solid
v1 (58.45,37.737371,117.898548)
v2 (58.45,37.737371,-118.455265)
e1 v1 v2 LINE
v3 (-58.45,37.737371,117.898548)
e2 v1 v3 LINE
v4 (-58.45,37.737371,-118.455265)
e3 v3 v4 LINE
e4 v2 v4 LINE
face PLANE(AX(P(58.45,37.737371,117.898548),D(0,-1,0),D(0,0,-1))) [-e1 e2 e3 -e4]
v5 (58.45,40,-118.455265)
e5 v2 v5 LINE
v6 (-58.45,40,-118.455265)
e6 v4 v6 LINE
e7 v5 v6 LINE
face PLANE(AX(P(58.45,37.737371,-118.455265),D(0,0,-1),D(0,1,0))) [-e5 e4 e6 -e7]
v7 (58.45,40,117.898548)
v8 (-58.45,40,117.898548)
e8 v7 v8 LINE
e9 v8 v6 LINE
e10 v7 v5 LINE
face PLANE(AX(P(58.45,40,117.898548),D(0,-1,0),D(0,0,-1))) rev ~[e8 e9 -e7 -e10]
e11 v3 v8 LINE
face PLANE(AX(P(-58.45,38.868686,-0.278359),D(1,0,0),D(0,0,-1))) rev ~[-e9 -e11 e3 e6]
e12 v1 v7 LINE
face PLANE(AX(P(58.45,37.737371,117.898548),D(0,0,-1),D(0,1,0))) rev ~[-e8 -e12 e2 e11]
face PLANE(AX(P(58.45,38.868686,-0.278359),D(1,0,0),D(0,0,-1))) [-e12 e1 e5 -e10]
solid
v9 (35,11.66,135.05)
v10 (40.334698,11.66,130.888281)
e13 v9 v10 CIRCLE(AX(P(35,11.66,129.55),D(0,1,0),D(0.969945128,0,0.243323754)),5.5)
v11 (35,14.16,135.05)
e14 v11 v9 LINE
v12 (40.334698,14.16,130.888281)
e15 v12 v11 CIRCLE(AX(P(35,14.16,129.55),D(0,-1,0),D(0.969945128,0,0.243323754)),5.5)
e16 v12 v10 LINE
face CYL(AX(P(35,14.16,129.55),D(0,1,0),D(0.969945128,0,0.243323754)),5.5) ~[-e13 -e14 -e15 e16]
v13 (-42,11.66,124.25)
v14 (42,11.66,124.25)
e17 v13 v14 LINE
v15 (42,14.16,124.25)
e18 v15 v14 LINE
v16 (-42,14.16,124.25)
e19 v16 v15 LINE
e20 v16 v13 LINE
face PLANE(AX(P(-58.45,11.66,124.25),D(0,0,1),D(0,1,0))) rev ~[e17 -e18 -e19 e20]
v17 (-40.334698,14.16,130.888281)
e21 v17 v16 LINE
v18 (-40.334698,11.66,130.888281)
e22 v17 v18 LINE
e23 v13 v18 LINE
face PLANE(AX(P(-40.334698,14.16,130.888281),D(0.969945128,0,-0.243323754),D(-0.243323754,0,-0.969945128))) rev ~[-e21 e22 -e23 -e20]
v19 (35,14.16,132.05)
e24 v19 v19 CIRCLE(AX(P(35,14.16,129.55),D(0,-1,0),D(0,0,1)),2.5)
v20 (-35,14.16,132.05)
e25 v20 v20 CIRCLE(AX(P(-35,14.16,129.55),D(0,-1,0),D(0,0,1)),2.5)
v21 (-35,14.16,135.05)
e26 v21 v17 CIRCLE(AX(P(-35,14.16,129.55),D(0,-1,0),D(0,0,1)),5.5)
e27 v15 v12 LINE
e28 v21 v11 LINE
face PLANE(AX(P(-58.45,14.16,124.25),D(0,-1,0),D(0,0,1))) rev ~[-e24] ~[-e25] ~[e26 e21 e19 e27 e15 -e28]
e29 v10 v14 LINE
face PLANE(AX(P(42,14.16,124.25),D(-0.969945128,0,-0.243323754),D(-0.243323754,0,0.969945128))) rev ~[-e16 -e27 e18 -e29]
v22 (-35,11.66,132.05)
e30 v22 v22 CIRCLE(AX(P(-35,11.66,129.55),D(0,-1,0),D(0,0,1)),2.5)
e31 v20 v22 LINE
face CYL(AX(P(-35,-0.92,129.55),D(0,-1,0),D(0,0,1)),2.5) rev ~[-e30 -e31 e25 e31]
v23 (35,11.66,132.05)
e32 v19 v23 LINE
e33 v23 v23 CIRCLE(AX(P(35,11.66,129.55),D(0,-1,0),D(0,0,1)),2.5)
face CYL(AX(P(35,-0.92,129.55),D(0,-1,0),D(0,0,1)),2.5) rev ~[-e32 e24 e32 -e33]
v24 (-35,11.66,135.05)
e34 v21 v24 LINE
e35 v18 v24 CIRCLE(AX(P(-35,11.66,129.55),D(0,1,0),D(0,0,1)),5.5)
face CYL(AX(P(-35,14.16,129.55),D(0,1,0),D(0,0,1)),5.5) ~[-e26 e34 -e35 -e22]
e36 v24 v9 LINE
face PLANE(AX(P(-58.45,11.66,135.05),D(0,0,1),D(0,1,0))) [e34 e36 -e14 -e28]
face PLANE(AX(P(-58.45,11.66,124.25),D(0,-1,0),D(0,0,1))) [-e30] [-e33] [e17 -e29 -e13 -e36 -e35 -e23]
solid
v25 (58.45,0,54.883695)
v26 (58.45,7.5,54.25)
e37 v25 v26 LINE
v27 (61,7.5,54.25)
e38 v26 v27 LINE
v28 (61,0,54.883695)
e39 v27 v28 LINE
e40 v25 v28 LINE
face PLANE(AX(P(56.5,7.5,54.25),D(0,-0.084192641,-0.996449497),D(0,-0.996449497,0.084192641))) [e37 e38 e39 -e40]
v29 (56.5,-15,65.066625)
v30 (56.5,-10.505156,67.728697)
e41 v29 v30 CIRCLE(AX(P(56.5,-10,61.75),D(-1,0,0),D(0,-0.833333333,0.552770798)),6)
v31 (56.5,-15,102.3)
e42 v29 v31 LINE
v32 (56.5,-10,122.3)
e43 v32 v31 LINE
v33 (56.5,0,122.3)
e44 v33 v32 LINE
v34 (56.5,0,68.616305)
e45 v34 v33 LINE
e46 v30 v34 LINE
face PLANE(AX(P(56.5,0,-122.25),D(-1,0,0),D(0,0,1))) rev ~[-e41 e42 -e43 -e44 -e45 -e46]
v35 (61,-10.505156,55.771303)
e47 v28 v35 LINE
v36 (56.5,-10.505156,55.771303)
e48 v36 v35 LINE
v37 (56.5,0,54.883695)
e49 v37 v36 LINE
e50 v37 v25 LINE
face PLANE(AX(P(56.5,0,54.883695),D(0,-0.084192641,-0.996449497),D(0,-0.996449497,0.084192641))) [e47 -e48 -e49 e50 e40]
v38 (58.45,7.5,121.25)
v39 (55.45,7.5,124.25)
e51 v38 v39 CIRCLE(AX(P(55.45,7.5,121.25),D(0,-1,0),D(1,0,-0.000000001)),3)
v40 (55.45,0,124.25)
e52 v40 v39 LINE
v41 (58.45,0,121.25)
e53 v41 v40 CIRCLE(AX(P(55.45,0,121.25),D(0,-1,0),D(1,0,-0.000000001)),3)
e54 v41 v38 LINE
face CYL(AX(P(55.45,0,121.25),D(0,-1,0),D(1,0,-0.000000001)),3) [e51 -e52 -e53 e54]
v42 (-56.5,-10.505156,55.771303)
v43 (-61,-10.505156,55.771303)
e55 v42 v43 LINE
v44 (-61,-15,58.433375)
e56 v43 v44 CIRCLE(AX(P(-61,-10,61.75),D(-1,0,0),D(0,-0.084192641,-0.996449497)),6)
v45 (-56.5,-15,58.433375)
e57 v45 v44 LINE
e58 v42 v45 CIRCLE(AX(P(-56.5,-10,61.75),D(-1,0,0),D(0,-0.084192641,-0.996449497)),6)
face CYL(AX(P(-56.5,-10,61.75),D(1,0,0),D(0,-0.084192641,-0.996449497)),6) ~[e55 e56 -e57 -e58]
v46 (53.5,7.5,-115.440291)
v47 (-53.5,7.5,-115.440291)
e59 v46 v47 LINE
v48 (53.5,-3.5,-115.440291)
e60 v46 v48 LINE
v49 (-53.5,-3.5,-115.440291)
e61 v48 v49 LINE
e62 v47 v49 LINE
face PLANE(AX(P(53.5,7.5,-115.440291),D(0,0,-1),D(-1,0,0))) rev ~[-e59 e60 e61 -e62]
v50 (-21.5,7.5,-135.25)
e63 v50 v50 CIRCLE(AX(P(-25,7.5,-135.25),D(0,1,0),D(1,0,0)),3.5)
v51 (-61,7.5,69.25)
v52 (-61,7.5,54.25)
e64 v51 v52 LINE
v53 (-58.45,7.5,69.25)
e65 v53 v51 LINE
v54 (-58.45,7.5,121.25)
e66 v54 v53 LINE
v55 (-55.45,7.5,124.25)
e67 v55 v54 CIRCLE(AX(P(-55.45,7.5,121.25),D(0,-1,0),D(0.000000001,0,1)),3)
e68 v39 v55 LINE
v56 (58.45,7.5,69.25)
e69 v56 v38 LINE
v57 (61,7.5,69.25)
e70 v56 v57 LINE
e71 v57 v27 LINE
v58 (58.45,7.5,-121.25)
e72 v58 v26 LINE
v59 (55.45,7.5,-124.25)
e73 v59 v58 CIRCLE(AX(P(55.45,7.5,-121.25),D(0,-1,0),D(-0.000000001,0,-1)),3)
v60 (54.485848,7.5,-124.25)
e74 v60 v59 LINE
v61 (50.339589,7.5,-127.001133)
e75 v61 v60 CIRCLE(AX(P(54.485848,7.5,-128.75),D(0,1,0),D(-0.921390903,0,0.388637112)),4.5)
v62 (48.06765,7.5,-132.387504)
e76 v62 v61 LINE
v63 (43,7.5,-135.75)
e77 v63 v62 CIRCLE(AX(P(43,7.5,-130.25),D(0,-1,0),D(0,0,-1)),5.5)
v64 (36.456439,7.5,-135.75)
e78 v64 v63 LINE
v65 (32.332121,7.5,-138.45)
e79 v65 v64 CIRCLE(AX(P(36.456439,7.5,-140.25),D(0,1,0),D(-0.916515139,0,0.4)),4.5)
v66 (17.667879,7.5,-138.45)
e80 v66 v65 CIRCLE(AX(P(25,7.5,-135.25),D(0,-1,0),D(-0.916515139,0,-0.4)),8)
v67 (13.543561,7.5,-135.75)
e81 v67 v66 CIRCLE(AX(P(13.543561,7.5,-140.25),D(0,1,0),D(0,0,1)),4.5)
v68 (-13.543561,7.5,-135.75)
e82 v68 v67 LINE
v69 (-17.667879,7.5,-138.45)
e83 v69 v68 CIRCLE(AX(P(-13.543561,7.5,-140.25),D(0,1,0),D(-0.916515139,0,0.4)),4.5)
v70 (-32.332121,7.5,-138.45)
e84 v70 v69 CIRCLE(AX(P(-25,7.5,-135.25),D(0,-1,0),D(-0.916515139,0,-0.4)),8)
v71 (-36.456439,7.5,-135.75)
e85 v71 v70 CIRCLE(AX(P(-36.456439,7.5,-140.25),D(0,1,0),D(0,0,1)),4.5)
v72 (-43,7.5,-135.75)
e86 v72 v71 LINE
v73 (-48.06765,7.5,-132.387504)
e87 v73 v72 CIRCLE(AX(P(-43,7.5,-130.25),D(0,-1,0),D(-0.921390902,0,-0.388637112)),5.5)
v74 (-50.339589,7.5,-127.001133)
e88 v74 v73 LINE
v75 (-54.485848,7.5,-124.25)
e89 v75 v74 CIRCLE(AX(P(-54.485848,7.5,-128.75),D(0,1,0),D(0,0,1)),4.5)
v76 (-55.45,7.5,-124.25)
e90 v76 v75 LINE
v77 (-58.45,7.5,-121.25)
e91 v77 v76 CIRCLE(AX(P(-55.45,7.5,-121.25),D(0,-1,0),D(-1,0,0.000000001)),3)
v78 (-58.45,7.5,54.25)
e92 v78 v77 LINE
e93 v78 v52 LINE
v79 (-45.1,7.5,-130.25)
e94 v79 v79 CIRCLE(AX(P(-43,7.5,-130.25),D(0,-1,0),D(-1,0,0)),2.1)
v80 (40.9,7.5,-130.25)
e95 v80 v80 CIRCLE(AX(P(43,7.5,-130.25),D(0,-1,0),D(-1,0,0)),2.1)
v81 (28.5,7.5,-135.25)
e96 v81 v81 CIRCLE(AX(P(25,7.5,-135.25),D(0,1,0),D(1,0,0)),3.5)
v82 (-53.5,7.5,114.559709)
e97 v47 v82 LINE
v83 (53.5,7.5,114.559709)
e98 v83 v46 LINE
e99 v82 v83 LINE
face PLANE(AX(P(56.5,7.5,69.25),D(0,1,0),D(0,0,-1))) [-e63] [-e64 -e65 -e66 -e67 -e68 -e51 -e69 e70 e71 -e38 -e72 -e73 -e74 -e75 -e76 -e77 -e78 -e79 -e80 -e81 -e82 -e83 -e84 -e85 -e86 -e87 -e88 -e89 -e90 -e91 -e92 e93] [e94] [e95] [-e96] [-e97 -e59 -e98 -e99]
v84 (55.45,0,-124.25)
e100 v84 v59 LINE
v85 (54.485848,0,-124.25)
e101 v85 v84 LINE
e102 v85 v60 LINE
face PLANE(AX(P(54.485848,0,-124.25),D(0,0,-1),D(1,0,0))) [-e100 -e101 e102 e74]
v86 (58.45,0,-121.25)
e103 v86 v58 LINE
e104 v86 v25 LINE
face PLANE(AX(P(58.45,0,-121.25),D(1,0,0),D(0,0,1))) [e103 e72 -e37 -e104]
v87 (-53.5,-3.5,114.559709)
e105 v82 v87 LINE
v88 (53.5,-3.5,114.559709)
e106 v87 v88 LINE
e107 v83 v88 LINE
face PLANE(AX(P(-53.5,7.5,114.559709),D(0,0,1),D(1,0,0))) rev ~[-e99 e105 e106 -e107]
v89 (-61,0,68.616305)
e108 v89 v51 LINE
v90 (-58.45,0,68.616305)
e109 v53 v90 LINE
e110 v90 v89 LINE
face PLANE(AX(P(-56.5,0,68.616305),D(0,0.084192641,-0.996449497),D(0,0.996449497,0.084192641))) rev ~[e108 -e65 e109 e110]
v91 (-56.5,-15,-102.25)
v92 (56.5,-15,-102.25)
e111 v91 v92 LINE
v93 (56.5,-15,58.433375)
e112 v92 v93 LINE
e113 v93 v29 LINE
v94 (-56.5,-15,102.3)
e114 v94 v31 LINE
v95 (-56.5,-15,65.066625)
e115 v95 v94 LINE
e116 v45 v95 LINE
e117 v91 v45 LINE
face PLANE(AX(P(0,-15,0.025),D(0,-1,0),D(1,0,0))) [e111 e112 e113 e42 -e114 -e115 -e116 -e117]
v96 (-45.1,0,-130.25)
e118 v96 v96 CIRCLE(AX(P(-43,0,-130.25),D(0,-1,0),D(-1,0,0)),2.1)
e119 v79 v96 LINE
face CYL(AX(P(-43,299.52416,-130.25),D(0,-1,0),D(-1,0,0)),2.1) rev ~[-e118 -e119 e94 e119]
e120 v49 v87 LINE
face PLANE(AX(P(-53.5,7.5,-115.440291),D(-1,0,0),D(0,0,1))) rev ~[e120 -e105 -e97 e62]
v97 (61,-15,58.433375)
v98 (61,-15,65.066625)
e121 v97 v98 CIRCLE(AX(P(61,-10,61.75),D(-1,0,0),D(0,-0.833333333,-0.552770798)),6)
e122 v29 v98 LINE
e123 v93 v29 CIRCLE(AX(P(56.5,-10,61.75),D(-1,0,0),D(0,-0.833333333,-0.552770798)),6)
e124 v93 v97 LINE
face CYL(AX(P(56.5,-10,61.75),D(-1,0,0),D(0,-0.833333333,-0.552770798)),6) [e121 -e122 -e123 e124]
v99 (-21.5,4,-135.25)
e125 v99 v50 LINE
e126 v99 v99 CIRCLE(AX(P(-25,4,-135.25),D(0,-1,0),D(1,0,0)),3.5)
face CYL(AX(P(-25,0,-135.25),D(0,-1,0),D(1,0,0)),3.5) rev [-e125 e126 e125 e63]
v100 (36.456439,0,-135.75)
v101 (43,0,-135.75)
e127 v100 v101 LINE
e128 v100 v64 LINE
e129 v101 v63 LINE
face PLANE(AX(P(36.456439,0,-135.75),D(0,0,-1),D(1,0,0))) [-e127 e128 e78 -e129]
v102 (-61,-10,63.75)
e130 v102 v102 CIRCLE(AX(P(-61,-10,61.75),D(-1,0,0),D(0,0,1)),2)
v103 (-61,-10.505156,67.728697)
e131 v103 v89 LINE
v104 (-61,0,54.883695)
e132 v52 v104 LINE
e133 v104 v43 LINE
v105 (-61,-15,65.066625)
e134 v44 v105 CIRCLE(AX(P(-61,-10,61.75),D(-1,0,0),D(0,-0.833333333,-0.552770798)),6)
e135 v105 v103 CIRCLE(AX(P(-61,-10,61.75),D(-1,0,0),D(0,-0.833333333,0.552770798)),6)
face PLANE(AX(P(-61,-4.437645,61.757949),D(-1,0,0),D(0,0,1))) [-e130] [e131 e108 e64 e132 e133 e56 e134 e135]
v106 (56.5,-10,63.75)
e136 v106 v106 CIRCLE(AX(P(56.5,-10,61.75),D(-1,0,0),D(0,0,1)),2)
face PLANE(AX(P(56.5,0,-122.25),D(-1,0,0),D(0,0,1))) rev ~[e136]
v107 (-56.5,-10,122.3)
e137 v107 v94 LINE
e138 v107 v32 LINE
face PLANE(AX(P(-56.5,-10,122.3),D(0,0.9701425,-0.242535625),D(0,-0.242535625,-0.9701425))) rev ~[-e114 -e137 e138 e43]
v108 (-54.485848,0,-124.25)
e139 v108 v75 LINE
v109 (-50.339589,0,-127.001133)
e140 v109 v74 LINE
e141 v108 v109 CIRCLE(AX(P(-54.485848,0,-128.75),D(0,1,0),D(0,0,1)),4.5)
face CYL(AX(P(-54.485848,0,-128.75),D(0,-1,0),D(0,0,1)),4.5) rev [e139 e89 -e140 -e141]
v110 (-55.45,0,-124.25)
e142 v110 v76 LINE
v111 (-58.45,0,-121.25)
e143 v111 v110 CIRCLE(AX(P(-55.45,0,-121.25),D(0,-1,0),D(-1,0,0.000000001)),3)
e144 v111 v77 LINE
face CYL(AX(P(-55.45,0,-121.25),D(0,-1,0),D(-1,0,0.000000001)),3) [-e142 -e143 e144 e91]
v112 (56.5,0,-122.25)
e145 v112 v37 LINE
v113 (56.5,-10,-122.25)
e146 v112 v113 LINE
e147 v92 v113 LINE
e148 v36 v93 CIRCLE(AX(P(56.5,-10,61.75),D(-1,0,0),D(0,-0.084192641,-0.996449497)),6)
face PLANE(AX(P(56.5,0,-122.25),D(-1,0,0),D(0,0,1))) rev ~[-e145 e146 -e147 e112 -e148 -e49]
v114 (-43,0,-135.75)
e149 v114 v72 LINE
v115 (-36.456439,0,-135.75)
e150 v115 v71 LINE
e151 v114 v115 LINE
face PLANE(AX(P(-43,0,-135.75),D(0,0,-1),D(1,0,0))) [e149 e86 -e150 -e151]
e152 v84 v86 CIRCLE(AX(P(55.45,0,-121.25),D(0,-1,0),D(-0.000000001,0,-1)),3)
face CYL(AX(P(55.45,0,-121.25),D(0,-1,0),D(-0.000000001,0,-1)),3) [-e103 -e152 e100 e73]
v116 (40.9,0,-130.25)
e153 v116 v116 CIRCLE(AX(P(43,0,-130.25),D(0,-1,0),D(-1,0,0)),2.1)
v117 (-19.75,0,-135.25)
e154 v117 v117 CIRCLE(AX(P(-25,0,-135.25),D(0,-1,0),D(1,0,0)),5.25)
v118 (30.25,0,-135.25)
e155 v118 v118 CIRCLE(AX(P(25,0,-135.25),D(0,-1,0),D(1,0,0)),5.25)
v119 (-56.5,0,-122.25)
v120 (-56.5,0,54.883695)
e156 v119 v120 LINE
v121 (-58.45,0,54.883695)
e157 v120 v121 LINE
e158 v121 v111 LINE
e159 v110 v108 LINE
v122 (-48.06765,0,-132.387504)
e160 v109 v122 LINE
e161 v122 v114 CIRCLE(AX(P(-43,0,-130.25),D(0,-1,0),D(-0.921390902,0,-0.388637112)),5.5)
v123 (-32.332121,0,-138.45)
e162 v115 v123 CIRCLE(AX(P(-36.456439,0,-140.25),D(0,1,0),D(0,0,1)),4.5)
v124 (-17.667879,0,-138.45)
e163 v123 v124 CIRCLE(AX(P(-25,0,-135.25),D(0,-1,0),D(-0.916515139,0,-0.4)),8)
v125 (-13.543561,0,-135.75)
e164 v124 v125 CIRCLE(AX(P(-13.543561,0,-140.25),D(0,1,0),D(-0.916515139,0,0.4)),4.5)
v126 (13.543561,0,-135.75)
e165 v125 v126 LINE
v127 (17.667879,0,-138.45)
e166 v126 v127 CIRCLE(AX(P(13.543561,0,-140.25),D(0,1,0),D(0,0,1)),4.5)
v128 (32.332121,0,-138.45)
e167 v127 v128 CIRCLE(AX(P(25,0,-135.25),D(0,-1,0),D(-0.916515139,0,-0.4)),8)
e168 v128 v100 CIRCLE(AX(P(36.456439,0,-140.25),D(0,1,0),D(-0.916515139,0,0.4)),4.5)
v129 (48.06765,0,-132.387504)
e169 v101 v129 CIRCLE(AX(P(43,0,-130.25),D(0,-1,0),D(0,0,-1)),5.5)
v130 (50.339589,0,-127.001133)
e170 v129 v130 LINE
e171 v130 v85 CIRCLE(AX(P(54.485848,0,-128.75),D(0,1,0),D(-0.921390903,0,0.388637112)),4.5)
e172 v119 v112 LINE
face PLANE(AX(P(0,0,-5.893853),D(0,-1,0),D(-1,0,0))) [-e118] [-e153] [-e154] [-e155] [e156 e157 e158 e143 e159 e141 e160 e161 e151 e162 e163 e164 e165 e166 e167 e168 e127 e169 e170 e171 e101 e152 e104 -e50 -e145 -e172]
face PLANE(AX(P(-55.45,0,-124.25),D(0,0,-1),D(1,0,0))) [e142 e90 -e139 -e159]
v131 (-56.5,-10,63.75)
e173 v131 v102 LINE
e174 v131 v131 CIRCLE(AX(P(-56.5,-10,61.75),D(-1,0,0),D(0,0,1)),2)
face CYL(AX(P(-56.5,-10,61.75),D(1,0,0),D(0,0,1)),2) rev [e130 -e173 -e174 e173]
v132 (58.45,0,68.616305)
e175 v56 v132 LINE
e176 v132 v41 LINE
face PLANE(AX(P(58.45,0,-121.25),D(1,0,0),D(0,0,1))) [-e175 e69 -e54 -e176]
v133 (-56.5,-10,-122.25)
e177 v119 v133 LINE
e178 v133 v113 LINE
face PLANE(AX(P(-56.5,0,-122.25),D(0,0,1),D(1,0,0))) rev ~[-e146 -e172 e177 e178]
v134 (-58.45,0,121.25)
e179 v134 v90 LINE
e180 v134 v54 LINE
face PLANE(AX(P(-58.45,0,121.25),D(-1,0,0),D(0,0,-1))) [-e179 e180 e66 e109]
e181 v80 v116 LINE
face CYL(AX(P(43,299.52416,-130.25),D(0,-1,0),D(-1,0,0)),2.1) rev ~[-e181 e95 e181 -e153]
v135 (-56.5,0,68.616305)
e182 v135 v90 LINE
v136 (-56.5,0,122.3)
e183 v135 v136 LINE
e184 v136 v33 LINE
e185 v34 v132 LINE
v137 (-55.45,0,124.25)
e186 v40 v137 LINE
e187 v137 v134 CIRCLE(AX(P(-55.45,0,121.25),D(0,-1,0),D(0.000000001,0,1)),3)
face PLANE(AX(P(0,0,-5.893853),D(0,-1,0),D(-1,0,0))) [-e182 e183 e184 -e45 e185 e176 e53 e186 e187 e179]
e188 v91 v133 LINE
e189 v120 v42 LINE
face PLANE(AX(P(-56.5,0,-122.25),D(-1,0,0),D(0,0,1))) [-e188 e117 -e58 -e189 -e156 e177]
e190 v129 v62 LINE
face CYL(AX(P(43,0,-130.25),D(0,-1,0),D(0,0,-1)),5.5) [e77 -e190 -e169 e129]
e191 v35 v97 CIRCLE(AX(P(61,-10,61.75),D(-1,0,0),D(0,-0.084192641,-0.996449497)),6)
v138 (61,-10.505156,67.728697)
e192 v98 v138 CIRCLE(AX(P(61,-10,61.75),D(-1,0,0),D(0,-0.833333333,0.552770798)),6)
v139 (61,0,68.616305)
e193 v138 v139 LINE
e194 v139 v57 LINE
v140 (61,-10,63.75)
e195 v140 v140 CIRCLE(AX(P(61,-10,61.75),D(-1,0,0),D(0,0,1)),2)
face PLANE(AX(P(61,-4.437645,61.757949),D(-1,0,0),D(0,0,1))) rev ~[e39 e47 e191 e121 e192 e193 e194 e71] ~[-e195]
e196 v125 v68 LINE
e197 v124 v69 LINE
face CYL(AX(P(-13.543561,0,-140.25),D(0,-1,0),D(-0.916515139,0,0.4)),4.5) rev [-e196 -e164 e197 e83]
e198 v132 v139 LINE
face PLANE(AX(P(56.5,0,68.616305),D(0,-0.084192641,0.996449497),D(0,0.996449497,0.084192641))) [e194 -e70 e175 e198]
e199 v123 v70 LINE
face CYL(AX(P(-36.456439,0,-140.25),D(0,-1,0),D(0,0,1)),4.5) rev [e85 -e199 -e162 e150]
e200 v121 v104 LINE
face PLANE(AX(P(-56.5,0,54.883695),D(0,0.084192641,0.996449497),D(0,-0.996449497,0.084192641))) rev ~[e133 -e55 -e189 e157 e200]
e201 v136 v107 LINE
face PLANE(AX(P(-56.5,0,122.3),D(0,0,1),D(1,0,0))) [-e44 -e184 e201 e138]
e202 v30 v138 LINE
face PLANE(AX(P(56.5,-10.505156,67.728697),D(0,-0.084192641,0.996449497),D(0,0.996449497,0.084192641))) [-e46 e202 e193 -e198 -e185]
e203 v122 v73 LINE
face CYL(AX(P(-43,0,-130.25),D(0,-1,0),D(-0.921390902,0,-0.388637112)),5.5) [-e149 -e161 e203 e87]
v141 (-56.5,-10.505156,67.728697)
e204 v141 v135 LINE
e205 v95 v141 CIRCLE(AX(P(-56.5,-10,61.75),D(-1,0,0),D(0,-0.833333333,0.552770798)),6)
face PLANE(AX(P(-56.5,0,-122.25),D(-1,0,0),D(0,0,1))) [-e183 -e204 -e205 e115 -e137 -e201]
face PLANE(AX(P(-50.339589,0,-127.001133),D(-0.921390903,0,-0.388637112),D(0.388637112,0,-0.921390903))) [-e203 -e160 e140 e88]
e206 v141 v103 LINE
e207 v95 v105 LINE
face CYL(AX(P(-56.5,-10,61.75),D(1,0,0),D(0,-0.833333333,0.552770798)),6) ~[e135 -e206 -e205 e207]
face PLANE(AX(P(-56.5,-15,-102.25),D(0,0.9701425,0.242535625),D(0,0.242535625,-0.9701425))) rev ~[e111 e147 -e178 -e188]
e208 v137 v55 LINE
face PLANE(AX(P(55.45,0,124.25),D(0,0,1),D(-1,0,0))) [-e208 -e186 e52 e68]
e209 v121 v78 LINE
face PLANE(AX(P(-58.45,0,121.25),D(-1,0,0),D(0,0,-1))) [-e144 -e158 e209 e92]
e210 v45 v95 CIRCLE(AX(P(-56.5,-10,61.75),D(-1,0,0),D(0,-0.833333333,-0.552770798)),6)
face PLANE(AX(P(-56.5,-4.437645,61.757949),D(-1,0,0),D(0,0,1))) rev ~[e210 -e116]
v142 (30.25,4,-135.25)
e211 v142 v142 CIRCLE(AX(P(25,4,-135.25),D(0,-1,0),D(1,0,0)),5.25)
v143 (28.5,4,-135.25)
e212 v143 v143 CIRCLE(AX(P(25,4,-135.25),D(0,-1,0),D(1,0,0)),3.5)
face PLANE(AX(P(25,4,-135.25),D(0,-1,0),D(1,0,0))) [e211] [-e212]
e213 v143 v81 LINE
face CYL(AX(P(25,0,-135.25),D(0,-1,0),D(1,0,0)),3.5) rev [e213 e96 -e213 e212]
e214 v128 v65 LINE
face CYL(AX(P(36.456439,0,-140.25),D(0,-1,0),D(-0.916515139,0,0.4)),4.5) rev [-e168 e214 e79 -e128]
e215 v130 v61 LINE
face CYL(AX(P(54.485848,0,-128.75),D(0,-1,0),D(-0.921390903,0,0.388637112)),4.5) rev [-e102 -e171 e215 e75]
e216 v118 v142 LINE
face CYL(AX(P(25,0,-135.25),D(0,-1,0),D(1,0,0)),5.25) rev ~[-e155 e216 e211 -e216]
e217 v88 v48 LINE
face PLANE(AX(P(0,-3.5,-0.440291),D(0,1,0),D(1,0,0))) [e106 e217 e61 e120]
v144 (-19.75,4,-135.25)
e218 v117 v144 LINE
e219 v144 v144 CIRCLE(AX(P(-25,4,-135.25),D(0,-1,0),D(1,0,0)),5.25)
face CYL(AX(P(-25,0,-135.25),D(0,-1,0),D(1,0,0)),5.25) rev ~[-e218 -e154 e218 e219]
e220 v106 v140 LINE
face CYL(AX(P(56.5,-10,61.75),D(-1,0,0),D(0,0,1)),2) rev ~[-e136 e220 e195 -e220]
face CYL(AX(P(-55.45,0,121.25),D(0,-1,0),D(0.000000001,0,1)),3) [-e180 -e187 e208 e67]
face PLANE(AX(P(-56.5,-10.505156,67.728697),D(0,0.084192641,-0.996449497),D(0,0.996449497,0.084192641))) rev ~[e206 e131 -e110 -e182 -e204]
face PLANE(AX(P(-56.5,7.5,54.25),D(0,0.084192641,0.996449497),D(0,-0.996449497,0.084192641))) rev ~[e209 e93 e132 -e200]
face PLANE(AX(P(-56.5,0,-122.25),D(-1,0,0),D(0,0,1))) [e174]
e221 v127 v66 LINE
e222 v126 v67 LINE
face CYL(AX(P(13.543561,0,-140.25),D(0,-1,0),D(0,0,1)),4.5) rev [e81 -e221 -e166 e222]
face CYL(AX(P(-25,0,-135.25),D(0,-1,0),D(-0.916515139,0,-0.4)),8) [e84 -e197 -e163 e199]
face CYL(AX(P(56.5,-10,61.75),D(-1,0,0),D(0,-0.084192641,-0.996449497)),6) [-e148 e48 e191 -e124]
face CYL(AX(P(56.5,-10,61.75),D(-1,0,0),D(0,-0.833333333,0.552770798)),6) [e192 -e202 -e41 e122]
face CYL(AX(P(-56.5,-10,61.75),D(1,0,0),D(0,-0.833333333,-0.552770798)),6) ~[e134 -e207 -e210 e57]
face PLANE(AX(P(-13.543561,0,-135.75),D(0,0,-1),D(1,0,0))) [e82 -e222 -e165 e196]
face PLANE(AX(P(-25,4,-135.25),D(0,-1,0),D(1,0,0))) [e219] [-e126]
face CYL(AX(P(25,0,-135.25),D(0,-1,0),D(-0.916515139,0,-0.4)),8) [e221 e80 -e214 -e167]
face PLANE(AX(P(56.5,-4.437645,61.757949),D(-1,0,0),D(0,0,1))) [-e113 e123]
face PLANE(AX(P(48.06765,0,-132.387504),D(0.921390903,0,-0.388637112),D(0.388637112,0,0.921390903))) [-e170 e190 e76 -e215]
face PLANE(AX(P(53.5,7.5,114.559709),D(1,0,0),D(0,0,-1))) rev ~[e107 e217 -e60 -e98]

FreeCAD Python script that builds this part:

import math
import FreeCAD as App
import Part
import Sketcher
from FreeCAD import Vector

doc = App.newDocument("Part")
body = doc.addObject("PartDesign::Body", "Body")

sketch1 = doc.addObject("Sketcher::SketchObject", "Sketch")
body.addObject(sketch1)
sketch1.AttachmentSupport = (doc.XZ_Plane, [""])
sketch1.MapMode = "FlatFace"
sketch1.addGeometry(Part.LineSegment(Vector(-36.456439, -135.75, 0), Vector(-43, -135.75, 0)), False)
sketch1.addGeometry(Part.ArcOfCircle(Part.Circle(Vector(-43, -130.25, 0), Vector(0, 0, 1), 5.5), math.radians(-157.130277), math.radians(-90)), False)
sketch1.addGeometry(Part.LineSegment(Vector(-48.06765, -132.387504, 0), Vector(-50.339589, -127.001133, 0)), False)
sketch1.addGeometry(Part.ArcOfCircle(Part.Circle(Vector(-54.485848, -128.75, 0), Vector(0, 0, 1), 4.5), math.radians(22.869723), math.radians(90)), False)
sketch1.addGeometry(Part.LineSegment(Vector(-54.485848, -124.25, 0), Vector(-55.45, -124.25, 0)), False)
sketch1.addGeometry(Part.ArcOfCircle(Part.Circle(Vector(-55.45, -121.25, 0), Vector(0, 0, 1), 3), math.radians(180), math.radians(270)), False)
sketch1.addGeometry(Part.LineSegment(Vector(-58.45, -121.25, 0), Vector(-58.45, 121.25, 0)), False)
sketch1.addGeometry(Part.ArcOfCircle(Part.Circle(Vector(-55.45, 121.25, 0), Vector(0, 0, 1), 3), math.radians(90), math.radians(180)), False)
sketch1.addGeometry(Part.LineSegment(Vector(-55.45, 124.25, 0), Vector(55.45, 124.25, 0)), False)
sketch1.addGeometry(Part.ArcOfCircle(Part.Circle(Vector(55.45, 121.25, 0), Vector(0, 0, 1), 3), math.radians(0), math.radians(90)), False)
sketch1.addGeometry(Part.LineSegment(Vector(58.45, 121.25, 0), Vector(58.45, -121.25, 0)), False)
sketch1.addGeometry(Part.ArcOfCircle(Part.Circle(Vector(55.45, -121.25, 0), Vector(0, 0, 1), 3), math.radians(-90), math.radians(0)), False)
sketch1.addGeometry(Part.LineSegment(Vector(55.45, -124.25, 0), Vector(54.485848, -124.25, 0)), False)
sketch1.addGeometry(Part.ArcOfCircle(Part.Circle(Vector(54.485848, -128.75, 0), Vector(0, 0, 1), 4.5), math.radians(90), math.radians(157.130277)), False)
sketch1.addGeometry(Part.LineSegment(Vector(50.339589, -127.001133, 0), Vector(48.06765, -132.387504, 0)), False)
sketch1.addGeometry(Part.ArcOfCircle(Part.Circle(Vector(43, -130.25, 0), Vector(0, 0, 1), 5.5), math.radians(-90), math.radians(-22.869723)), False)
sketch1.addGeometry(Part.LineSegment(Vector(43, -135.75, 0), Vector(36.456439, -135.75, 0)), False)
sketch1.addGeometry(Part.ArcOfCircle(Part.Circle(Vector(36.456439, -140.25, 0), Vector(0, 0, 1), 4.5), math.radians(90), math.radians(156.421821)), False)
sketch1.addGeometry(Part.ArcOfCircle(Part.Circle(Vector(25, -135.25, 0), Vector(0, 0, 1), 8), math.radians(-156.421822), math.radians(-23.578178)), False)
sketch1.addGeometry(Part.ArcOfCircle(Part.Circle(Vector(13.543561, -140.25, 0), Vector(0, 0, 1), 4.5), math.radians(23.578179), math.radians(90)), False)
sketch1.addGeometry(Part.LineSegment(Vector(13.543561, -135.75, 0), Vector(-13.543561, -135.75, 0)), False)
sketch1.addGeometry(Part.ArcOfCircle(Part.Circle(Vector(-13.543561, -140.25, 0), Vector(0, 0, 1), 4.5), math.radians(90), math.radians(156.421821)), False)
sketch1.addGeometry(Part.ArcOfCircle(Part.Circle(Vector(-25, -135.25, 0), Vector(0, 0, 1), 8), math.radians(-156.421822), math.radians(-23.578178)), False)
sketch1.addGeometry(Part.ArcOfCircle(Part.Circle(Vector(-36.456439, -140.25, 0), Vector(0, 0, 1), 4.5), math.radians(23.578179), math.radians(90)), False)
sketch1.addGeometry(Part.Circle(Vector(43, -130.25, 0), Vector(0, 0, 1), 1.75), False)
sketch1.addGeometry(Part.Circle(Vector(-43, -130.25, 0), Vector(0, 0, 1), 1.75), False)
sketch1.addGeometry(Part.Circle(Vector(25, -135.25, 0), Vector(0, 0, 1), 3.5), False)
sketch1.addGeometry(Part.Circle(Vector(-25, -135.25, 0), Vector(0, 0, 1), 3.5), False)
sketch1.addConstraint(Sketcher.Constraint("Tangent", 0, 2, 1, 2))
sketch1.addConstraint(Sketcher.Constraint("Tangent", 1, 1, 2, 1))
sketch1.addConstraint(Sketcher.Constraint("Tangent", 2, 2, 3, 1))
sketch1.addConstraint(Sketcher.Constraint("Tangent", 3, 2, 4, 1))
sketch1.addConstraint(Sketcher.Constraint("Tangent", 4, 2, 5, 2))
sketch1.addConstraint(Sketcher.Constraint("Tangent", 5, 1, 6, 1))
sketch1.addConstraint(Sketcher.Constraint("Tangent", 6, 2, 7, 2))
sketch1.addConstraint(Sketcher.Constraint("Tangent", 7, 1, 8, 1))
sketch1.addConstraint(Sketcher.Constraint("Tangent", 8, 2, 9, 2))
sketch1.addConstraint(Sketcher.Constraint("Tangent", 9, 1, 10, 1))
sketch1.addConstraint(Sketcher.Constraint("Tangent", 10, 2, 11, 2))
sketch1.addConstraint(Sketcher.Constraint("Tangent", 11, 1, 12, 1))
sketch1.addConstraint(Sketcher.Constraint("Tangent", 12, 2, 13, 1))
sketch1.addConstraint(Sketcher.Constraint("Tangent", 13, 2, 14, 1))
sketch1.addConstraint(Sketcher.Constraint("Tangent", 14, 2, 15, 2))
sketch1.addConstraint(Sketcher.Constraint("Tangent", 15, 1, 16, 1))
sketch1.addConstraint(Sketcher.Constraint("Tangent", 16, 2, 17, 1))
sketch1.addConstraint(Sketcher.Constraint("Tangent", 17, 2, 18, 2))
sketch1.addConstraint(Sketcher.Constraint("Tangent", 18, 1, 19, 1))
sketch1.addConstraint(Sketcher.Constraint("Tangent", 19, 2, 20, 1))
sketch1.addConstraint(Sketcher.Constraint("Tangent", 20, 2, 21, 1))
sketch1.addConstraint(Sketcher.Constraint("Tangent", 21, 2, 22, 2))
sketch1.addConstraint(Sketcher.Constraint("Tangent", 22, 1, 23, 1))
sketch1.addConstraint(Sketcher.Constraint("Tangent", 23, 2, 0, 1))
sketch1.addConstraint(Sketcher.Constraint("Horizontal", 0))
sketch1.addConstraint(Sketcher.Constraint("Horizontal", 4))
sketch1.addConstraint(Sketcher.Constraint("Vertical", 6))
sketch1.addConstraint(Sketcher.Constraint("Horizontal", 8))
sketch1.addConstraint(Sketcher.Constraint("Vertical", 10))
sketch1.addConstraint(Sketcher.Constraint("Horizontal", 12))
sketch1.addConstraint(Sketcher.Constraint("Horizontal", 16))
sketch1.addConstraint(Sketcher.Constraint("Horizontal", 20))
sketch1.addConstraint(Sketcher.Constraint("Coincident", 24, 3, 15, 3))
sketch1.addConstraint(Sketcher.Constraint("Coincident", 25, 3, 1, 3))
sketch1.addConstraint(Sketcher.Constraint("Coincident", 26, 3, 18, 3))
sketch1.addConstraint(Sketcher.Constraint("Coincident", 27, 3, 22, 3))
sketch1.addConstraint(Sketcher.Constraint("Equal", 5, 7))
sketch1.addConstraint(Sketcher.Constraint("Equal", 7, 9))
sketch1.addConstraint(Sketcher.Constraint("Equal", 9, 11))
sketch1.addConstraint(Sketcher.Constraint("Equal", 3, 13))
sketch1.addConstraint(Sketcher.Constraint("Equal", 1, 15))
sketch1.addConstraint(Sketcher.Constraint("Equal", 13, 17))
sketch1.addConstraint(Sketcher.Constraint("Equal", 17, 19))
sketch1.addConstraint(Sketcher.Constraint("Equal", 19, 21))
sketch1.addConstraint(Sketcher.Constraint("Equal", 18, 22))
sketch1.addConstraint(Sketcher.Constraint("Equal", 21, 23))
sketch1.addConstraint(Sketcher.Constraint("Equal", 24, 25))
sketch1.addConstraint(Sketcher.Constraint("Equal", 26, 27))
sketch1.addConstraint(Sketcher.Constraint("Symmetric", 5, 3, 9, 3, -1, 1))
sketch1.addConstraint(Sketcher.Constraint("Symmetric", 3, 3, 13, 3, -2))
sketch1.addConstraint(Sketcher.Constraint("Symmetric", 1, 3, 15, 3, -2))
sketch1.addConstraint(Sketcher.Constraint("Symmetric", 18, 3, 22, 3, -2))
sketch1.addConstraint(Sketcher.Constraint("Horizontal", 17, 3, 19, 3))
sketch1.addConstraint(Sketcher.Constraint("Diameter", 26, 7.0))
sketch1.addConstraint(Sketcher.Constraint("Radius", 5, 3.0))
sketch1.addConstraint(Sketcher.Constraint("Radius", 18, 8.0))
sketch1.addConstraint(Sketcher.Constraint("Diameter", 24, 3.5))
sketch1.addConstraint(Sketcher.Constraint("Radius", 1, 5.5))
sketch1.addConstraint(Sketcher.Constraint("Radius", 3, 4.5))
sketch1.addConstraint(Sketcher.Constraint("DistanceX", 8, 1, 8, 2, 110.9))
sketch1.addConstraint(Sketcher.Constraint("DistanceY", 6, 1, 6, 2, 242.5))
sketch1.addConstraint(Sketcher.Constraint("DistanceX", 1, 3, -1, 1, 43.0))
sketch1.addConstraint(Sketcher.Constraint("DistanceX", -1, 1, 18, 3, 25.0))
sketch1.addConstraint(Sketcher.Constraint("DistanceY", 1, 3, 5, 3, 9.0))
sketch1.addConstraint(Sketcher.Constraint("DistanceY", 17, 3, 18, 3, 5.0))
sketch1.addConstraint(Sketcher.Constraint("DistanceX", 4, 2, 4, 1, 0.964152))
pad1 = doc.addObject("PartDesign::Pad", "Pad")
body.addObject(pad1)
pad1.Profile = sketch1
pad1.Length = 7.5
pad1.Reversed = True

sketch2 = doc.addObject("Sketcher::SketchObject", "Sketch001")
body.addObject(sketch2)
sketch2.AttachmentSupport = (doc.XZ_Plane, [""])
sketch2.MapMode = "FlatFace"
sketch2.addGeometry(Part.Circle(Vector(25, -135.25, 0), Vector(0, 0, 1), 5.25), False)
sketch2.addGeometry(Part.Circle(Vector(-25, -135.25, 0), Vector(0, 0, 1), 5.25), False)
sketch2.addConstraint(Sketcher.Constraint("Equal", 0, 1))
sketch2.addConstraint(Sketcher.Constraint("Symmetric", 0, 3, 1, 3, -2))
sketch2.addConstraint(Sketcher.Constraint("Diameter", 0, 10.5))
sketch2.addConstraint(Sketcher.Constraint("DistanceX", -1, 1, 0, 3, 25.0))
sketch2.addConstraint(Sketcher.Constraint("DistanceY", 0, 3, -1, 1, 135.25))
pocket1 = doc.addObject("PartDesign::Pocket", "Pocket")
body.addObject(pocket1)
pocket1.Profile = sketch2
pocket1.Length = 4

sketch3 = doc.addObject("Sketcher::SketchObject", "Sketch002")
body.addObject(sketch3)
sketch3.AttachmentSupport = (doc.XZ_Plane, [""])
sketch3.MapMode = "FlatFace"
sketch3.AttachmentOffset = App.Placement(Vector(0, 0, -7.5), App.Rotation())
sketch3.addGeometry(Part.Circle(Vector(-43, -130.25, 0), Vector(0, 0, 1), 2.1), False)
sketch3.addGeometry(Part.Circle(Vector(43, -130.25, 0), Vector(0, 0, 1), 2.1), False)
sketch3.addConstraint(Sketcher.Constraint("Equal", 0, 1))
sketch3.addConstraint(Sketcher.Constraint("Symmetric", 0, 3, 1, 3, -2))
sketch3.addConstraint(Sketcher.Constraint("Diameter", 0, 4.2))
sketch3.addConstraint(Sketcher.Constraint("DistanceX", 0, 3, -1, 1, 43.0))
sketch3.addConstraint(Sketcher.Constraint("DistanceY", 0, 3, -1, 1, 130.25))
doc.recompute()
hole = doc.addObject("PartDesign::Hole", "Hole")
body.addObject(hole)
hole.Profile = sketch3
hole.ThreadType = "None"
hole.Diameter = 4.2
hole.DepthType = "ThroughAll"
hole.Reversed = True

sketch4 = doc.addObject("Sketcher::SketchObject", "Sketch003")
body.addObject(sketch4)
sketch4.AttachmentSupport = (doc.XZ_Plane, [""])
sketch4.MapMode = "FlatFace"
sketch4.addGeometry(Part.LineSegment(Vector(-56.5, 122.3, 0), Vector(-56.5, -122.25, 0)), False)
sketch4.addGeometry(Part.LineSegment(Vector(-56.5, -122.25, 0), Vector(56.5, -122.25, 0)), False)
sketch4.addGeometry(Part.LineSegment(Vector(56.5, -122.25, 0), Vector(56.5, 122.3, 0)), False)
sketch4.addGeometry(Part.LineSegment(Vector(56.5, 122.3, 0), Vector(-56.5, 122.3, 0)), False)
sketch4.addConstraint(Sketcher.Constraint("Coincident", 0, 2, 1, 1))
sketch4.addConstraint(Sketcher.Constraint("Coincident", 1, 2, 2, 1))
sketch4.addConstraint(Sketcher.Constraint("Coincident", 2, 2, 3, 1))
sketch4.addConstraint(Sketcher.Constraint("Coincident", 3, 2, 0, 1))
sketch4.addConstraint(Sketcher.Constraint("Vertical", 0))
sketch4.addConstraint(Sketcher.Constraint("Horizontal", 1))
sketch4.addConstraint(Sketcher.Constraint("Vertical", 2))
sketch4.addConstraint(Sketcher.Constraint("Horizontal", 3))
sketch4.addConstraint(Sketcher.Constraint("DistanceX", 1, 1, 1, 2, 113.0))
sketch4.addConstraint(Sketcher.Constraint("DistanceY", 0, 2, 0, 1, 244.55))
sketch4.addConstraint(Sketcher.Constraint("DistanceX", 0, 2, -1, 1, 56.5))
sketch4.addConstraint(Sketcher.Constraint("DistanceY", -1, 1, 2, 2, 122.3))
pad2 = doc.addObject("PartDesign::Pad", "Pad001")
body.addObject(pad2)
pad2.Profile = sketch4
pad2.Length = 15

sketch5 = doc.addObject("Sketcher::SketchObject", "Sketch004")
body.addObject(sketch5)
sketch5.AttachmentSupport = (doc.YZ_Plane, [""])
sketch5.MapMode = "FlatFace"
sketch5.AttachmentOffset = App.Placement(Vector(0, 0, -56.5), App.Rotation())
sketch5.addGeometry(Part.LineSegment(Vector(-10.505156, 67.728697, 0), Vector(0, 68.616305, 0)), False)
sketch5.addGeometry(Part.LineSegment(Vector(0, 68.616305, 0), Vector(7.5, 69.25, 0)), False)
sketch5.addGeometry(Part.LineSegment(Vector(7.5, 69.25, 0), Vector(7.5, 54.25, 0)), False)
sketch5.addGeometry(Part.LineSegment(Vector(7.5, 54.25, 0), Vector(0, 54.883695, 0)), False)
sketch5.addGeometry(Part.LineSegment(Vector(0, 54.883695, 0), Vector(-10.505156, 55.771303, 0)), False)
sketch5.addGeometry(Part.ArcOfCircle(Part.Circle(Vector(-10, 61.75, 0), Vector(0, 0, 1), 6), math.radians(-146.44269), math.radians(-94.8296)), False)
sketch5.addGeometry(Part.ArcOfCircle(Part.Circle(Vector(-10, 61.75, 0), Vector(0, 0, 1), 6), math.radians(146.44269), math.radians(213.55731)), False)
sketch5.addGeometry(Part.ArcOfCircle(Part.Circle(Vector(-10, 61.75, 0), Vector(0, 0, 1), 6), math.radians(94.8296), math.radians(146.44269)), False)
sketch5.addGeometry(Part.Circle(Vector(-10, 61.75, 0), Vector(0, 0, 1), 2), False)
sketch5.addConstraint(Sketcher.Constraint("Coincident", 0, 2, 1, 1))
sketch5.addConstraint(Sketcher.Constraint("Coincident", 1, 2, 2, 1))
sketch5.addConstraint(Sketcher.Constraint("Coincident", 2, 2, 3, 1))
sketch5.addConstraint(Sketcher.Constraint("Coincident", 3, 2, 4, 1))
sketch5.addConstraint(Sketcher.Constraint("Tangent", 4, 2, 5, 2))
sketch5.addConstraint(Sketcher.Constraint("Tangent", 5, 1, 6, 2))
sketch5.addConstraint(Sketcher.Constraint("Tangent", 6, 1, 7, 2))
sketch5.addConstraint(Sketcher.Constraint("Tangent", 7, 1, 0, 1))
sketch5.addConstraint(Sketcher.Constraint("Vertical", 2))
sketch5.addConstraint(Sketcher.Constraint("Coincident", 7, 3, 5, 3))
sketch5.addConstraint(Sketcher.Constraint("Coincident", 8, 3, 5, 3))
sketch5.addConstraint(Sketcher.Constraint("PointOnObject", 0, 2, -2))
sketch5.addConstraint(Sketcher.Constraint("PointOnObject", 3, 2, -2))
sketch5.addConstraint(Sketcher.Constraint("Parallel", 0, 1))
sketch5.addConstraint(Sketcher.Constraint("Parallel", 3, 4))
sketch5.addConstraint(Sketcher.Constraint("Vertical", 5, 1, 6, 1))
sketch5.addConstraint(Sketcher.Constraint("Vertical", 4, 2, 7, 1))
sketch5.addConstraint(Sketcher.Constraint("Diameter", 8, 4.0))
sketch5.addConstraint(Sketcher.Constraint("Radius", 5, 6.0))
sketch5.addConstraint(Sketcher.Constraint("DistanceY", 2, 2, 2, 1, 15.0))
sketch5.addConstraint(Sketcher.Constraint("DistanceX", 5, 3, -1, 1, 10.0))
sketch5.addConstraint(Sketcher.Constraint("DistanceX", 5, 1, -1, 1, 15.0))
sketch5.addConstraint(Sketcher.Constraint("DistanceX", -1, 1, 1, 2, 7.5))
sketch5.addConstraint(Sketcher.Constraint("DistanceY", -1, 1, 5, 3, 61.75))
pad3 = doc.addObject("PartDesign::Pad", "Pad002")
body.addObject(pad3)
pad3.Profile = sketch5
pad3.Length = 4.5
pad3.Reversed = True

sketch6 = doc.addObject("Sketcher::SketchObject", "Sketch005")
body.addObject(sketch6)
sketch6.AttachmentSupport = (doc.YZ_Plane, [""])
sketch6.MapMode = "FlatFace"
sketch6.AttachmentOffset = App.Placement(Vector(0, 0, 56.5), App.Rotation())
sketch6.addGeometry(Part.LineSegment(Vector(-10.505156, 67.728697, 0), Vector(0, 68.616305, 0)), False)
sketch6.addGeometry(Part.LineSegment(Vector(0, 68.616305, 0), Vector(7.5, 69.25, 0)), False)
sketch6.addGeometry(Part.LineSegment(Vector(7.5, 69.25, 0), Vector(7.5, 54.25, 0)), False)
sketch6.addGeometry(Part.LineSegment(Vector(7.5, 54.25, 0), Vector(0, 54.883695, 0)), False)
sketch6.addGeometry(Part.LineSegment(Vector(0, 54.883695, 0), Vector(-10.505156, 55.771303, 0)), False)
sketch6.addGeometry(Part.ArcOfCircle(Part.Circle(Vector(-10, 61.75, 0), Vector(0, 0, 1), 6), math.radians(-146.44269), math.radians(-94.8296)), False)
sketch6.addGeometry(Part.ArcOfCircle(Part.Circle(Vector(-10, 61.75, 0), Vector(0, 0, 1), 6), math.radians(146.44269), math.radians(213.55731)), False)
sketch6.addGeometry(Part.ArcOfCircle(Part.Circle(Vector(-10, 61.75, 0), Vector(0, 0, 1), 6), math.radians(94.8296), math.radians(146.44269)), False)
sketch6.addGeometry(Part.Circle(Vector(-10, 61.75, 0), Vector(0, 0, 1), 2), False)
sketch6.addConstraint(Sketcher.Constraint("Coincident", 0, 2, 1, 1))
sketch6.addConstraint(Sketcher.Constraint("Coincident", 1, 2, 2, 1))
sketch6.addConstraint(Sketcher.Constraint("Coincident", 2, 2, 3, 1))
sketch6.addConstraint(Sketcher.Constraint("Coincident", 3, 2, 4, 1))
sketch6.addConstraint(Sketcher.Constraint("Tangent", 4, 2, 5, 2))
sketch6.addConstraint(Sketcher.Constraint("Tangent", 5, 1, 6, 2))
sketch6.addConstraint(Sketcher.Constraint("Tangent", 6, 1, 7, 2))
sketch6.addConstraint(Sketcher.Constraint("Tangent", 7, 1, 0, 1))
sketch6.addConstraint(Sketcher.Constraint("Vertical", 2))
sketch6.addConstraint(Sketcher.Constraint("Coincident", 7, 3, 5, 3))
sketch6.addConstraint(Sketcher.Constraint("Coincident", 8, 3, 5, 3))
sketch6.addConstraint(Sketcher.Constraint("PointOnObject", 0, 2, -2))
sketch6.addConstraint(Sketcher.Constraint("PointOnObject", 3, 2, -2))
sketch6.addConstraint(Sketcher.Constraint("Parallel", 0, 1))
sketch6.addConstraint(Sketcher.Constraint("Parallel", 3, 4))
sketch6.addConstraint(Sketcher.Constraint("Vertical", 5, 1, 6, 1))
sketch6.addConstraint(Sketcher.Constraint("Vertical", 4, 2, 7, 1))
sketch6.addConstraint(Sketcher.Constraint("Diameter", 8, 4.0))
sketch6.addConstraint(Sketcher.Constraint("Radius", 5, 6.0))
sketch6.addConstraint(Sketcher.Constraint("DistanceY", 2, 2, 2, 1, 15.0))
sketch6.addConstraint(Sketcher.Constraint("DistanceX", 5, 3, -1, 1, 10.0))
sketch6.addConstraint(Sketcher.Constraint("DistanceX", 5, 1, -1, 1, 15.0))
sketch6.addConstraint(Sketcher.Constraint("DistanceX", -1, 1, 1, 2, 7.5))
sketch6.addConstraint(Sketcher.Constraint("DistanceY", -1, 1, 5, 3, 61.75))
pad4 = doc.addObject("PartDesign::Pad", "Pad003")
body.addObject(pad4)
pad4.Profile = sketch6
pad4.Length = 4.5

sketch7 = doc.addObject("Sketcher::SketchObject", "Sketch006")
body.addObject(sketch7)
sketch7.AttachmentSupport = (doc.YZ_Plane, [""])
sketch7.MapMode = "FlatFace"
sketch7.AttachmentOffset = App.Placement(Vector(0, 0, -56.5), App.Rotation())
sketch7.addGeometry(Part.LineSegment(Vector(-10, 122.3, 0), Vector(-15, 102.3, 0)), False)
sketch7.addGeometry(Part.LineSegment(Vector(-15, 102.3, 0), Vector(-15, 122.3, 0)), False)
sketch7.addGeometry(Part.LineSegment(Vector(-15, 122.3, 0), Vector(-10, 122.3, 0)), False)
sketch7.addGeometry(Part.LineSegment(Vector(-15, -102.25, 0), Vector(-10, -122.25, 0)), False)
sketch7.addGeometry(Part.LineSegment(Vector(-10, -122.25, 0), Vector(-15, -122.25, 0)), False)
sketch7.addGeometry(Part.LineSegment(Vector(-15, -122.25, 0), Vector(-15, -102.25, 0)), False)
sketch7.addConstraint(Sketcher.Constraint("Coincident", 0, 2, 1, 1))
sketch7.addConstraint(Sketcher.Constraint("Coincident", 1, 2, 2, 1))
sketch7.addConstraint(Sketcher.Constraint("Coincident", 2, 2, 0, 1))
sketch7.addConstraint(Sketcher.Constraint("Coincident", 3, 2, 4, 1))
sketch7.addConstraint(Sketcher.Constraint("Coincident", 4, 2, 5, 1))
sketch7.addConstraint(Sketcher.Constraint("Coincident", 5, 2, 3, 1))
sketch7.addConstraint(Sketcher.Constraint("Vertical", 1))
sketch7.addConstraint(Sketcher.Constraint("Horizontal", 2))
sketch7.addConstraint(Sketcher.Constraint("Horizontal", 4))
sketch7.addConstraint(Sketcher.Constraint("Vertical", 5))
sketch7.addConstraint(Sketcher.Constraint("Vertical", 2, 2, 3, 2))
sketch7.addConstraint(Sketcher.Constraint("Vertical", 1, 2, 4, 2))
sketch7.addConstraint(Sketcher.Constraint("Equal", 1, 5))
sketch7.addConstraint(Sketcher.Constraint("DistanceX", 2, 1, 2, 2, 5.0))
sketch7.addConstraint(Sketcher.Constraint("DistanceY", 1, 1, 1, 2, 20.0))
sketch7.addConstraint(Sketcher.Constraint("DistanceX", 0, 2, -1, 1, 15.0))
sketch7.addConstraint(Sketcher.Constraint("DistanceY", -1, 1, 0, 2, 102.3))
sketch7.addConstraint(Sketcher.Constraint("DistanceY", 3, 2, -1, 1, 122.25))
pocket2 = doc.addObject("PartDesign::Pocket", "Pocket001")
body.addObject(pocket2)
pocket2.Profile = sketch7
pocket2.Type = "ThroughAll"
pocket2.Reversed = True

sketch8 = doc.addObject("Sketcher::SketchObject", "Sketch007")
body.addObject(sketch8)
sketch8.AttachmentSupport = (doc.XZ_Plane, [""])
sketch8.MapMode = "FlatFace"
sketch8.AttachmentOffset = App.Placement(Vector(0, 0, -7.5), App.Rotation())
sketch8.addGeometry(Part.LineSegment(Vector(-53.5, 114.559709, 0), Vector(53.5, 114.559709, 0)), False)
sketch8.addGeometry(Part.LineSegment(Vector(53.5, 114.559709, 0), Vector(53.5, -115.440291, 0)), False)
sketch8.addGeometry(Part.LineSegment(Vector(53.5, -115.440291, 0), Vector(-53.5, -115.440291, 0)), False)
sketch8.addGeometry(Part.LineSegment(Vector(-53.5, -115.440291, 0), Vector(-53.5, 114.559709, 0)), False)
sketch8.addConstraint(Sketcher.Constraint("Coincident", 0, 2, 1, 1))
sketch8.addConstraint(Sketcher.Constraint("Coincident", 1, 2, 2, 1))
sketch8.addConstraint(Sketcher.Constraint("Coincident", 2, 2, 3, 1))
sketch8.addConstraint(Sketcher.Constraint("Coincident", 3, 2, 0, 1))
sketch8.addConstraint(Sketcher.Constraint("Horizontal", 0))
sketch8.addConstraint(Sketcher.Constraint("Vertical", 1))
sketch8.addConstraint(Sketcher.Constraint("Horizontal", 2))
sketch8.addConstraint(Sketcher.Constraint("Vertical", 3))
sketch8.addConstraint(Sketcher.Constraint("DistanceX", 0, 1, 0, 2, 107.0))
sketch8.addConstraint(Sketcher.Constraint("DistanceY", 1, 2, 1, 1, 230.0))
sketch8.addConstraint(Sketcher.Constraint("DistanceX", -1, 1, 0, 2, 53.5))
sketch8.addConstraint(Sketcher.Constraint("DistanceY", -1, 1, 0, 2, 114.559709))
pocket3 = doc.addObject("PartDesign::Pocket", "Pocket002")
body.addObject(pocket3)
pocket3.Profile = sketch8
pocket3.Length = 11
pocket3.Reversed = True
body2 = doc.addObject("PartDesign::Body", "Body001")

sketch9 = doc.addObject("Sketcher::SketchObject", "Sketch008")
body2.addObject(sketch9)
sketch9.AttachmentSupport = (doc.getObject("YZ_Plane001"), [""])
sketch9.MapMode = "FlatFace"
sketch9.AttachmentOffset = App.Placement(Vector(0, 0, -58.45), App.Rotation())
sketch9.addGeometry(Part.LineSegment(Vector(14.16, 124.25, 0), Vector(11.66, 124.25, 0)), False)
sketch9.addGeometry(Part.LineSegment(Vector(11.66, 124.25, 0), Vector(11.66, 135.05, 0)), False)
sketch9.addGeometry(Part.LineSegment(Vector(11.66, 135.05, 0), Vector(14.16, 135.05, 0)), False)
sketch9.addGeometry(Part.LineSegment(Vector(14.16, 135.05, 0), Vector(14.16, 124.25, 0)), False)
sketch9.addConstraint(Sketcher.Constraint("Coincident", 0, 2, 1, 1))
sketch9.addConstraint(Sketcher.Constraint("Coincident", 1, 2, 2, 1))
sketch9.addConstraint(Sketcher.Constraint("Coincident", 2, 2, 3, 1))
sketch9.addConstraint(Sketcher.Constraint("Coincident", 3, 2, 0, 1))
sketch9.addConstraint(Sketcher.Constraint("Horizontal", 0))
sketch9.addConstraint(Sketcher.Constraint("Vertical", 1))
sketch9.addConstraint(Sketcher.Constraint("Horizontal", 2))
sketch9.addConstraint(Sketcher.Constraint("Vertical", 3))
sketch9.addConstraint(Sketcher.Constraint("DistanceX", 0, 2, 0, 1, 2.5))
sketch9.addConstraint(Sketcher.Constraint("DistanceY", 1, 1, 1, 2, 10.8))
sketch9.addConstraint(Sketcher.Constraint("DistanceX", -1, 1, 0, 2, 11.66))
sketch9.addConstraint(Sketcher.Constraint("DistanceY", -1, 1, 0, 2, 124.25))
pad5 = doc.addObject("PartDesign::Pad", "Pad004")
body2.addObject(pad5)
pad5.Profile = sketch9
pad5.Length = 110

sketch10 = doc.addObject("Sketcher::SketchObject", "Sketch009")
body2.addObject(sketch10)
sketch10.AttachmentSupport = (doc.getObject("XZ_Plane001"), [""])
sketch10.MapMode = "FlatFace"
sketch10.AttachmentOffset = App.Placement(Vector(0, 0, -14.16), App.Rotation())
sketch10.addGeometry(Part.LineSegment(Vector(-40.334698, 130.888281, 0), Vector(-42, 124.25, 0)), False)
sketch10.addGeometry(Part.LineSegment(Vector(-42, 124.25, 0), Vector(-58.45, 124.25, 0)), False)
sketch10.addGeometry(Part.LineSegment(Vector(-58.45, 124.25, 0), Vector(-58.45, 135.05, 0)), False)
sketch10.addGeometry(Part.LineSegment(Vector(-58.45, 135.05, 0), Vector(-35, 135.05, 0)), False)
sketch10.addGeometry(Part.ArcOfCircle(Part.Circle(Vector(-35, 129.55, 0), Vector(0, 0, 1), 5.5), math.radians(90), math.radians(165.917206)), False)
sketch10.addGeometry(Part.ArcOfCircle(Part.Circle(Vector(35, 129.55, 0), Vector(0, 0, 1), 5.5), math.radians(14.082794), math.radians(90)), False)
sketch10.addGeometry(Part.LineSegment(Vector(35, 135.05, 0), Vector(51.55, 135.05, 0)), False)
sketch10.addGeometry(Part.LineSegment(Vector(51.55, 135.05, 0), Vector(51.55, 124.25, 0)), False)
sketch10.addGeometry(Part.LineSegment(Vector(51.55, 124.25, 0), Vector(42, 124.25, 0)), False)
sketch10.addGeometry(Part.LineSegment(Vector(42, 124.25, 0), Vector(40.334698, 130.888281, 0)), False)
sketch10.addConstraint(Sketcher.Constraint("Coincident", 0, 2, 1, 1))
sketch10.addConstraint(Sketcher.Constraint("Coincident", 1, 2, 2, 1))
sketch10.addConstraint(Sketcher.Constraint("Coincident", 2, 2, 3, 1))
sketch10.addConstraint(Sketcher.Constraint("Tangent", 3, 2, 4, 1))
sketch10.addConstraint(Sketcher.Constraint("Tangent", 4, 2, 0, 1))
sketch10.addConstraint(Sketcher.Constraint("Tangent", 5, 2, 6, 1))
sketch10.addConstraint(Sketcher.Constraint("Coincident", 6, 2, 7, 1))
sketch10.addConstraint(Sketcher.Constraint("Coincident", 7, 2, 8, 1))
sketch10.addConstraint(Sketcher.Constraint("Coincident", 8, 2, 9, 1))
sketch10.addConstraint(Sketcher.Constraint("Tangent", 9, 2, 5, 1))
sketch10.addConstraint(Sketcher.Constraint("Horizontal", 1))
sketch10.addConstraint(Sketcher.Constraint("Vertical", 2))
sketch10.addConstraint(Sketcher.Constraint("Horizontal", 3))
sketch10.addConstraint(Sketcher.Constraint("Horizontal", 6))
sketch10.addConstraint(Sketcher.Constraint("Vertical", 7))
sketch10.addConstraint(Sketcher.Constraint("Horizontal", 8))
sketch10.addConstraint(Sketcher.Constraint("Equal", 4, 5))
sketch10.addConstraint(Sketcher.Constraint("Symmetric", 4, 3, 5, 3, -2))
sketch10.addConstraint(Sketcher.Constraint("Symmetric", 0, 2, 8, 2, -2))
sketch10.addConstraint(Sketcher.Constraint("Radius", 4, 5.5))
sketch10.addConstraint(Sketcher.Constraint("DistanceY", 2, 1, 2, 2, 10.8))
sketch10.addConstraint(Sketcher.Constraint("DistanceX", 4, 3, -1, 1, 35.0))
sketch10.addConstraint(Sketcher.Constraint("DistanceX", 0, 2, -1, 1, 42.0))
sketch10.addConstraint(Sketcher.Constraint("DistanceX", 1, 2, 1, 1, 16.45))
sketch10.addConstraint(Sketcher.Constraint("DistanceX", 6, 1, 6, 2, 16.55))
sketch10.addConstraint(Sketcher.Constraint("DistanceY", -1, 1, 4, 3, 129.55))
pocket4 = doc.addObject("PartDesign::Pocket", "Pocket003")
body2.addObject(pocket4)
pocket4.Profile = sketch10
pocket4.Length = 110
pocket4.Reversed = True

sketch11 = doc.addObject("Sketcher::SketchObject", "Sketch010")
body2.addObject(sketch11)
sketch11.AttachmentSupport = (doc.getObject("YZ_Plane001"), [""])
sketch11.MapMode = "FlatFace"
sketch11.AttachmentOffset = App.Placement(Vector(0, 0, -35), App.Rotation())
sketch11.addGeometry(Part.LineSegment(Vector(-16, 129.55, 0), Vector(14.16, 129.55, 0)), False)
sketch11.addGeometry(Part.LineSegment(Vector(14.16, 129.55, 0), Vector(14.16, 132.05, 0)), False)
sketch11.addGeometry(Part.LineSegment(Vector(14.16, 132.05, 0), Vector(-16, 132.05, 0)), False)
sketch11.addGeometry(Part.LineSegment(Vector(-16, 132.05, 0), Vector(-16, 129.55, 0)), False)
sketch11.addGeometry(Part.LineSegment(Vector(14.16, 129.55, 0), Vector(-16, 129.55, 0)), True)
sketch11.addConstraint(Sketcher.Constraint("Coincident", 0, 2, 1, 1))
sketch11.addConstraint(Sketcher.Constraint("Coincident", 1, 2, 2, 1))
sketch11.addConstraint(Sketcher.Constraint("Coincident", 2, 2, 3, 1))
sketch11.addConstraint(Sketcher.Constraint("Coincident", 3, 2, 0, 1))
sketch11.addConstraint(Sketcher.Constraint("Horizontal", 0))
sketch11.addConstraint(Sketcher.Constraint("Vertical", 1))
sketch11.addConstraint(Sketcher.Constraint("Horizontal", 2))
sketch11.addConstraint(Sketcher.Constraint("Vertical", 3))
sketch11.addConstraint(Sketcher.Constraint("Horizontal", 4))
sketch11.addConstraint(Sketcher.Constraint("Coincident", 4, 1, 0, 2))
sketch11.addConstraint(Sketcher.Constraint("Vertical", 2, 2, 4, 2))
sketch11.addConstraint(Sketcher.Constraint("DistanceY", 1, 1, 1, 2, 2.5))
sketch11.addConstraint(Sketcher.Constraint("DistanceX", 2, 2, -1, 1, 16.0))
sketch11.addConstraint(Sketcher.Constraint("DistanceX", 0, 1, 0, 2, 30.16))
sketch11.addConstraint(Sketcher.Constraint("DistanceY", -1, 1, 0, 2, 129.55))
groove = doc.addObject("PartDesign::Groove", "Groove")
body2.addObject(groove)
groove.Profile = sketch11
groove.ReferenceAxis = (sketch11, ["Axis0"])
groove.Angle = 360
doc.recompute()

linearpattern = doc.addObject("PartDesign::LinearPattern", "LinearPattern")
body2.addObject(linearpattern)
linearpattern.Originals = [groove]
linearpattern.Direction = (doc.getObject("X_Axis001"), [""])
linearpattern.Mode = "offset"
linearpattern.Offset = 70
linearpattern.Occurrences = 2
body2.Tip = linearpattern
body3 = doc.addObject("PartDesign::Body", "Body002")

sketch12 = doc.addObject("Sketcher::SketchObject", "Sketch011")
body3.addObject(sketch12)
sketch12.AttachmentSupport = (doc.getObject("YZ_Plane002"), [""])
sketch12.MapMode = "FlatFace"
sketch12.AttachmentOffset = App.Placement(Vector(0, 0, 58.45), App.Rotation())
sketch12.addGeometry(Part.LineSegment(Vector(40, 117.898548, 0), Vector(37.737371, 117.898548, 0)), False)
sketch12.addGeometry(Part.LineSegment(Vector(37.737371, 117.898548, 0), Vector(37.737371, -118.455265, 0)), False)
sketch12.addGeometry(Part.LineSegment(Vector(37.737371, -118.455265, 0), Vector(40, -118.455265, 0)), False)
sketch12.addGeometry(Part.LineSegment(Vector(40, -118.455265, 0), Vector(40, 117.898548, 0)), False)
sketch12.addConstraint(Sketcher.Constraint("Coincident", 0, 2, 1, 1))
sketch12.addConstraint(Sketcher.Constraint("Coincident", 1, 2, 2, 1))
sketch12.addConstraint(Sketcher.Constraint("Coincident", 2, 2, 3, 1))
sketch12.addConstraint(Sketcher.Constraint("Coincident", 3, 2, 0, 1))
sketch12.addConstraint(Sketcher.Constraint("Horizontal", 0))
sketch12.addConstraint(Sketcher.Constraint("Vertical", 1))
sketch12.addConstraint(Sketcher.Constraint("Horizontal", 2))
sketch12.addConstraint(Sketcher.Constraint("Vertical", 3))
sketch12.addConstraint(Sketcher.Constraint("DistanceX", -1, 1, 2, 2, 40.0))
sketch12.addConstraint(Sketcher.Constraint("DistanceX", 0, 2, 0, 1, 2.262629))
sketch12.addConstraint(Sketcher.Constraint("DistanceY", 1, 2, 1, 1, 236.353813))
sketch12.addConstraint(Sketcher.Constraint("DistanceY", -1, 1, 0, 2, 117.898548))
pad6 = doc.addObject("PartDesign::Pad", "Pad005")
body3.addObject(pad6)
pad6.Profile = sketch12
pad6.Length = 116.9
pad6.Reversed = True

doc.recompute()
